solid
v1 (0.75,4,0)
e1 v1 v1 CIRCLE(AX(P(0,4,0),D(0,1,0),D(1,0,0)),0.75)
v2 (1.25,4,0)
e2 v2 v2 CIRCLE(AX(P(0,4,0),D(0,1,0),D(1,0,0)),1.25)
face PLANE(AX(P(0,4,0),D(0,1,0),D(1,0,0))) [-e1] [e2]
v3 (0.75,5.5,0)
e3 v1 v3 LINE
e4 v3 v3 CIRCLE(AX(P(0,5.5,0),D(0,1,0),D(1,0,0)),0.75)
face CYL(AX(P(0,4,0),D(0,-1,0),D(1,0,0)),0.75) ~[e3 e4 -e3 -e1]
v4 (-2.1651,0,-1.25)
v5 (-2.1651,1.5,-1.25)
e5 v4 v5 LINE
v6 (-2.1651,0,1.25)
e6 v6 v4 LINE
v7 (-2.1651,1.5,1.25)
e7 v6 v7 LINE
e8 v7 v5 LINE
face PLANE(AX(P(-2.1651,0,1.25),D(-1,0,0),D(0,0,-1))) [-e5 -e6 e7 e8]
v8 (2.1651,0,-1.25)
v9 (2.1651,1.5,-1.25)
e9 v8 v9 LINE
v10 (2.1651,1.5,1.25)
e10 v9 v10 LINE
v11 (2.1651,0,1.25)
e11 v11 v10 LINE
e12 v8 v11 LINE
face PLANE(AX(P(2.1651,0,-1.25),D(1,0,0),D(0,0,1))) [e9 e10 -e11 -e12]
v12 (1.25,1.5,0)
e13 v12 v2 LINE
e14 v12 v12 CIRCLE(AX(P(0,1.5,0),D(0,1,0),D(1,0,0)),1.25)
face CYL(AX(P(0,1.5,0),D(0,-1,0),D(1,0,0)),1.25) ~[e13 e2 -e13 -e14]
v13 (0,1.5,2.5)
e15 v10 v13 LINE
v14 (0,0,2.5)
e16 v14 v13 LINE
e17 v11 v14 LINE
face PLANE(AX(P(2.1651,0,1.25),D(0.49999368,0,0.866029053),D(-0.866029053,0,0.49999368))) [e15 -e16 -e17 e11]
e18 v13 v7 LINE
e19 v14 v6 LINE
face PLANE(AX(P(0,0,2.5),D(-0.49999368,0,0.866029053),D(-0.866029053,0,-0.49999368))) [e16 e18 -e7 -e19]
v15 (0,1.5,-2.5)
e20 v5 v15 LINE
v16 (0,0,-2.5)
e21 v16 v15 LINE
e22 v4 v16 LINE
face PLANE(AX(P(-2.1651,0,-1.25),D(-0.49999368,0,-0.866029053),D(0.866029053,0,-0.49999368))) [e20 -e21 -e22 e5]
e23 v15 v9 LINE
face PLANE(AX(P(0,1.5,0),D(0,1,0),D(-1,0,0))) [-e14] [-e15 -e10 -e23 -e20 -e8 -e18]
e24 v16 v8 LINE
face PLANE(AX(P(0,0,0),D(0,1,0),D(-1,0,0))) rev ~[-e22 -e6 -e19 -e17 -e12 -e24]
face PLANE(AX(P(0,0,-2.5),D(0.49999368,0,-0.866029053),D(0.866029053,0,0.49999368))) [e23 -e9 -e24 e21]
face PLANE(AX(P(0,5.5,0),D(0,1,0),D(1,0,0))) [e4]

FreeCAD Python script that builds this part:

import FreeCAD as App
import Part
import Sketcher
Q = App.Units.Quantity


def add_polygon(sketch, points):
    """Adds a closed chain of lines whose ends are joined by coincident constraints."""
    first, n = sketch.GeometryCount, len(points)
    for a, b in zip(points, points[1:] + points[:1]):
        sketch.addGeometry(Part.LineSegment(App.Vector(*a, 0), App.Vector(*b, 0)), False)
    for i in range(n):
        sketch.addConstraint(Sketcher.Constraint("Coincident", first + i, 2, first + (i + 1) % n, 1))

doc = App.newDocument("Part")
params = doc.addObject("Spreadsheet::Sheet", "Params")
for row, (alias, value) in enumerate([
    ("sketch1_height", "2.5 mm"),
    ("pad1_length", "1.5 mm"),
    ("sketch2_diameter", "2.5 mm"),
    ("pad2_length", "2.5 mm"),
    ("sketch3_diameter", "1.5 mm"),
    ("pad3_length", "1.5 mm"),
], start=1):
    params.set(f"A{row}", alias)
    params.set(f"B{row}", "=" + value)
    params.setAlias(f"B{row}", alias)

body = doc.addObject("PartDesign::Body", "Body")

# Sketch on XZ plane
sketch1 = body.newObject("Sketcher::SketchObject", "Sketch")
sketch1.AttachmentSupport = (doc.getObject("XZ_Plane"), [""])
sketch1.MapMode = "FlatFace"
add_polygon(sketch1, [(2.1651, -1.25), (0, -2.5), (-2.1651, -1.25), (-2.1651, 1.25), (0, 2.5), (2.1651, 1.25)])  # lines 0-5
sketch1.addConstraint(Sketcher.Constraint("Vertical", 2))
sketch1.addConstraint(Sketcher.Constraint("Vertical", 5))
sketch1.addConstraint(Sketcher.Constraint("Symmetric", 0, 2, 3, 2, -1, 1))
sketch1.addConstraint(Sketcher.Constraint("Symmetric", 1, 2, 4, 2, -1, 1))
sketch1.addConstraint(Sketcher.Constraint("PointOnObject", 0, 2, -2))
sketch1.addConstraint(Sketcher.Constraint("Parallel", 0, 3))
sketch1.addConstraint(Sketcher.Constraint("Horizontal", 2, 2, 4, 2))
sketch1.addConstraint(Sketcher.Constraint("DistanceY", 0, 2, 3, 2, 5.0))
sketch1.addConstraint(Sketcher.Constraint("Angle", 0, Q("-150.0004 deg")))
sketch1.addConstraint(Sketcher.Constraint("DistanceY", 2, 1, 2, 2, 2.5))
sketch1.setExpression("Constraints[15]", "Params.sketch1_height")
pad1 = body.newObject("PartDesign::Pad", "Pad")
pad1.Profile = sketch1
pad1.setExpression("Length", "Params.pad1_length")
pad1.Reversed = True

# Sketch on XZ plane
sketch2 = body.newObject("Sketcher::SketchObject", "Sketch001")
sketch2.AttachmentSupport = (doc.getObject("XZ_Plane"), [""])
sketch2.MapMode = "FlatFace"
sketch2.AttachmentOffset = App.Placement(App.Vector(0, 0, -1.5), App.Rotation())
sketch2.addGeometry(Part.Circle(App.Vector(0, 0, 0), App.Vector(0, 0, 1), 1.25), False)
sketch2.addConstraint(Sketcher.Constraint("Coincident", 0, 3, -1, 1))
sketch2.addConstraint(Sketcher.Constraint("Diameter", 0, 2.5))
sketch2.setExpression("Constraints[1]", "Params.sketch2_diameter")
pad2 = body.newObject("PartDesign::Pad", "Pad001")
pad2.Profile = sketch2
pad2.setExpression("Length", "Params.pad2_length")
pad2.Reversed = True

# Sketch on XZ plane
sketch3 = body.newObject("Sketcher::SketchObject", "Sketch002")
sketch3.AttachmentSupport = (doc.getObject("XZ_Plane"), [""])
sketch3.MapMode = "FlatFace"
sketch3.AttachmentOffset = App.Placement(App.Vector(0, 0, -4), App.Rotation())
sketch3.addGeometry(Part.Circle(App.Vector(0, 0, 0), App.Vector(0, 0, 1), 0.75), False)
sketch3.addConstraint(Sketcher.Constraint("Coincident", 0, 3, -1, 1))
sketch3.addConstraint(Sketcher.Constraint("Diameter", 0, 1.5))
sketch3.setExpression("Constraints[1]", "Params.sketch3_diameter")
pad3 = body.newObject("PartDesign::Pad", "Pad002")
pad3.Profile = sketch3
pad3.setExpression("Length", "Params.pad3_length")
pad3.Reversed = True

doc.recompute()
